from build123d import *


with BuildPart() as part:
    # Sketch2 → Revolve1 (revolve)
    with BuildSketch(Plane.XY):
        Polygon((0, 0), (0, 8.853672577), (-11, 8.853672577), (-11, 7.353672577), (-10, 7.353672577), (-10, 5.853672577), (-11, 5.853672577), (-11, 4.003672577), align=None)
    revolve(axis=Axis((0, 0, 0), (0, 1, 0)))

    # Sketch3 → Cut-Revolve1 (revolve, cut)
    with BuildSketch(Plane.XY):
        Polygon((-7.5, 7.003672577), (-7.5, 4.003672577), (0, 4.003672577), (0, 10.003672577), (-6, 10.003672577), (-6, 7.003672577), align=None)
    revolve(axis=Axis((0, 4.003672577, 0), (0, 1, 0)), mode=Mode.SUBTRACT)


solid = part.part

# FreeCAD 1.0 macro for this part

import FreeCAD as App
import Part
import Sketcher
from FreeCAD import Vector
Q = App.Units.Quantity

doc = App.newDocument("Part")
body = doc.addObject("PartDesign::Body", "Body")

# Sketch on XY plane
sketch1 = doc.addObject("Sketcher::SketchObject", "Sketch")
body.addObject(sketch1)
sketch1.AttachmentSupport = (doc.XY_Plane, [""])
sketch1.MapMode = "FlatFace"
sketch1.addGeometry(Part.LineSegment(Vector(0, 0, 0), Vector(0, 8.9, 0)), False)
sketch1.addGeometry(Part.LineSegment(Vector(0, 8.9, 0), Vector(-11, 8.9, 0)), False)
sketch1.addGeometry(Part.LineSegment(Vector(-11, 8.9, 0), Vector(-11, 7.4, 0)), False)
sketch1.addGeometry(Part.LineSegment(Vector(-11, 7.4, 0), Vector(-10, 7.4, 0)), False)
sketch1.addGeometry(Part.LineSegment(Vector(-10, 7.4, 0), Vector(-10, 5.9, 0)), False)
sketch1.addGeometry(Part.LineSegment(Vector(-10, 5.9, 0), Vector(-11, 5.9, 0)), False)
sketch1.addGeometry(Part.LineSegment(Vector(-11, 5.9, 0), Vector(-11, 4, 0)), False)
sketch1.addGeometry(Part.LineSegment(Vector(-11, 4, 0), Vector(0, 0, 0)), False)
sketch1.addConstraint(Sketcher.Constraint("Coincident", 0, 2, 1, 1))
sketch1.addConstraint(Sketcher.Constraint("Coincident", 1, 2, 2, 1))
sketch1.addConstraint(Sketcher.Constraint("Coincident", 2, 2, 3, 1))
sketch1.addConstraint(Sketcher.Constraint("Coincident", 3, 2, 4, 1))
sketch1.addConstraint(Sketcher.Constraint("Coincident", 4, 2, 5, 1))
sketch1.addConstraint(Sketcher.Constraint("Coincident", 5, 2, 6, 1))
sketch1.addConstraint(Sketcher.Constraint("Coincident", 6, 2, 7, 1))
sketch1.addConstraint(Sketcher.Constraint("Coincident", 7, 2, 0, 1))
sketch1.addConstraint(Sketcher.Constraint("Vertical", 0))
sketch1.addConstraint(Sketcher.Constraint("Horizontal", 1))
sketch1.addConstraint(Sketcher.Constraint("Vertical", 2))
sketch1.addConstraint(Sketcher.Constraint("Horizontal", 3))
sketch1.addConstraint(Sketcher.Constraint("Vertical", 4))
sketch1.addConstraint(Sketcher.Constraint("Horizontal", 5))
sketch1.addConstraint(Sketcher.Constraint("Vertical", 6))
sketch1.addConstraint(Sketcher.Constraint("Coincident", 7, 2, -1, 1))
sketch1.addConstraint(Sketcher.Constraint("Vertical", 2, 2, 5, 2))
sketch1.addConstraint(Sketcher.Constraint("Equal", 2, 4))
sketch1.addConstraint(Sketcher.Constraint("DistanceX", 1, 2, 1, 1, 11.0))
sketch1.addConstraint(Sketcher.Constraint("DistanceX", 3, 1, 3, 2, 1.0))
sketch1.addConstraint(Sketcher.Constraint("Angle", 7, Q("-20 deg")))
sketch1.addConstraint(Sketcher.Constraint("DistanceY", 2, 2, 2, 1, 1.5))
sketch1.addConstraint(Sketcher.Constraint("DistanceY", 6, 2, 6, 1, 1.85))
revolution = doc.addObject("PartDesign::Revolution", "Revolution")
body.addObject(revolution)
revolution.Profile = sketch1
revolution.ReferenceAxis = (sketch1, ["V_Axis"])
revolution.Angle = 360

# Sketch on XY plane
sketch2 = doc.addObject("Sketcher::SketchObject", "Sketch001")
body.addObject(sketch2)
sketch2.AttachmentSupport = (doc.XY_Plane, [""])
sketch2.MapMode = "FlatFace"
sketch2.addGeometry(Part.LineSegment(Vector(-7.5, 7, 0), Vector(-7.5, 4, 0)), False)
sketch2.addGeometry(Part.LineSegment(Vector(-7.5, 4, 0), Vector(0, 4, 0)), False)
sketch2.addGeometry(Part.LineSegment(Vector(0, 4, 0), Vector(0, 10, 0)), False)
sketch2.addGeometry(Part.LineSegment(Vector(0, 10, 0), Vector(-6, 10, 0)), False)
sketch2.addGeometry(Part.LineSegment(Vector(-6, 10, 0), Vector(-6, 7, 0)), False)
sketch2.addGeometry(Part.LineSegment(Vector(-6, 7, 0), Vector(-7.5, 7, 0)), False)
sketch2.addConstraint(Sketcher.Constraint("Coincident", 0, 2, 1, 1))
sketch2.addConstraint(Sketcher.Constraint("Coincident", 1, 2, 2, 1))
sketch2.addConstraint(Sketcher.Constraint("Coincident", 2, 2, 3, 1))
sketch2.addConstraint(Sketcher.Constraint("Coincident", 3, 2, 4, 1))
sketch2.addConstraint(Sketcher.Constraint("Coincident", 4, 2, 5, 1))
sketch2.addConstraint(Sketcher.Constraint("Coincident", 5, 2, 0, 1))
sketch2.addConstraint(Sketcher.Constraint("Vertical", 0))
sketch2.addConstraint(Sketcher.Constraint("Horizontal", 1))
sketch2.addConstraint(Sketcher.Constraint("Vertical", 2))
sketch2.addConstraint(Sketcher.Constraint("Horizontal", 3))
sketch2.addConstraint(Sketcher.Constraint("Vertical", 4))
sketch2.addConstraint(Sketcher.Constraint("Horizontal", 5))
sketch2.addConstraint(Sketcher.Constraint("PointOnObject", 1, 2, -2))
sketch2.addConstraint(Sketcher.Constraint("Equal", 3, 2))
sketch2.addConstraint(Sketcher.Constraint("Equal", 0, 4))
sketch2.addConstraint(Sketcher.Constraint("DistanceX", 3, 2, 3, 1, 6.0))
sketch2.addConstraint(Sketcher.Constraint("DistanceX", 1, 1, 1, 2, 7.5))
sketch2.addConstraint(Sketcher.Constraint("DistanceY", -1, 1, 0, 2, 4.003673))
groove = doc.addObject("PartDesign::Groove", "Groove")
body.addObject(groove)
groove.Profile = sketch2
groove.ReferenceAxis = (sketch2, ["V_Axis"])
groove.Angle = 360

doc.recompute()
